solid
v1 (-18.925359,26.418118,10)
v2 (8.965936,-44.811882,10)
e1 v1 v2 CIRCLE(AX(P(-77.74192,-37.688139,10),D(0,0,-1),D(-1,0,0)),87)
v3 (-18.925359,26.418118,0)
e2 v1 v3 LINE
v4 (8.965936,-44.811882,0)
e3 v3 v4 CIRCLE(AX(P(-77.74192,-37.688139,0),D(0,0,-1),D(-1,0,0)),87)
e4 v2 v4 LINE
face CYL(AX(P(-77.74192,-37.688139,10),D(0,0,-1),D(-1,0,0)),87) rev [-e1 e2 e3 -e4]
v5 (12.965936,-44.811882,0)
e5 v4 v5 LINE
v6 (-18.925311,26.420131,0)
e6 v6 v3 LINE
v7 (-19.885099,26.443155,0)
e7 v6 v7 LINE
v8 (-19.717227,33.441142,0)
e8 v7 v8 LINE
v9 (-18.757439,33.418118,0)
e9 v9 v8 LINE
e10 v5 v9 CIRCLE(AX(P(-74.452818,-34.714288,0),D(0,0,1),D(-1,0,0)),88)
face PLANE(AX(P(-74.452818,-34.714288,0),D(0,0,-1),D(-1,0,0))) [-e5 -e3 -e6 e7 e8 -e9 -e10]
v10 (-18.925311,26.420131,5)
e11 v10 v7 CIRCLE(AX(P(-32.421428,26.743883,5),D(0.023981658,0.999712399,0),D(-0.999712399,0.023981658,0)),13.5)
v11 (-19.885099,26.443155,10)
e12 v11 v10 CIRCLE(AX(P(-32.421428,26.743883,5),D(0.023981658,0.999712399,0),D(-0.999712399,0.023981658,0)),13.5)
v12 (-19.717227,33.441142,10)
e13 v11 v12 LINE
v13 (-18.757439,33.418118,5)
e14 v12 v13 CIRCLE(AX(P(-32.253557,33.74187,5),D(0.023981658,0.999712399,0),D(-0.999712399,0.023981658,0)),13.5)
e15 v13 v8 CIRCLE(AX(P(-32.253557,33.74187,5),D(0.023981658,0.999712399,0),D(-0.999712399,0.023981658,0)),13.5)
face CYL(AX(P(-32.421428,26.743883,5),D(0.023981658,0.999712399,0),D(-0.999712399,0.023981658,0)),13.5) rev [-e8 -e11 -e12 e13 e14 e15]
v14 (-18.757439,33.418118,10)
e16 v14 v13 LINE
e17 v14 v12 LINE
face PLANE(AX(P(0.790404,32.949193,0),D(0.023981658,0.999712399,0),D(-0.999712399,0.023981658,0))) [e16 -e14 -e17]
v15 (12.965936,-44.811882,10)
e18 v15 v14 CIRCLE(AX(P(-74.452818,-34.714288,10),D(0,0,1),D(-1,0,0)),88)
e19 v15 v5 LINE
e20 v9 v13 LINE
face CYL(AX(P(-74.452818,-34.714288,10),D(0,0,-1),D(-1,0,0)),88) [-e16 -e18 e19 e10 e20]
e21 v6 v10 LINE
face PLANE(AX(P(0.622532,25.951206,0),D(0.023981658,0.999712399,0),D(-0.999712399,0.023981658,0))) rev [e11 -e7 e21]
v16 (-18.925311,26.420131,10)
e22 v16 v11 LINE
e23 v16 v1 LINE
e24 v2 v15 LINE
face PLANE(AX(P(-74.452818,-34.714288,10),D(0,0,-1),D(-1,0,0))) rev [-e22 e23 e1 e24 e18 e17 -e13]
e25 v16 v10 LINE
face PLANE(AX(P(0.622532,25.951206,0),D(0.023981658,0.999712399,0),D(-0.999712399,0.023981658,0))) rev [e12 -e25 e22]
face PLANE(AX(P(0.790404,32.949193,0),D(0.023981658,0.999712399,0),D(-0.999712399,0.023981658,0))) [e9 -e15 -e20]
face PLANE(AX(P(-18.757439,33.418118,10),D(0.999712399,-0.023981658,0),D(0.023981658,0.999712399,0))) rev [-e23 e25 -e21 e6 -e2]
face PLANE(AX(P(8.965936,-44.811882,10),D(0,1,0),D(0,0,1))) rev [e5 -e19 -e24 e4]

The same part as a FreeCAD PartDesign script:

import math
import FreeCAD as App
import Part
import Sketcher
from FreeCAD import Vector

doc = App.newDocument("Part")
body = doc.addObject("PartDesign::Body", "Body")

# Sketch on XY plane
sketch1 = body.newObject("Sketcher::SketchObject", "Sketch")
sketch1.AttachmentSupport = (doc.getObject("XY_Plane"), [""])
sketch1.MapMode = "FlatFace"
sketch1.addGeometry([
    Part.LineSegment(Vector(-18.757439, 33.418118, 0), Vector(-18.925359, 26.418118, 0)),
    Part.ArcOfCircle(Part.Circle(Vector(-77.74192, -37.688139, 0), Vector(0, 0, 1), 87), math.radians(-4.696757), math.radians(47.46407)),
    Part.LineSegment(Vector(8.965936, -44.811882, 0), Vector(12.965936, -44.811882, 0)),
    Part.ArcOfCircle(Part.Circle(Vector(-74.452818, -34.714288, 0), Vector(0, 0, 1), 88), math.radians(-6.58894), math.radians(50.735445)),
], False)
sketch1.addConstraint([
    Sketcher.Constraint("Coincident", 0, 2, 1, 2),
    Sketcher.Constraint("Coincident", 1, 1, 2, 1),
    Sketcher.Constraint("Coincident", 2, 2, 3, 1),
    Sketcher.Constraint("Coincident", 3, 2, 0, 1),
    Sketcher.Constraint("Horizontal", 2),
    Sketcher.Constraint("Radius", 1, 87.0),
    Sketcher.Constraint("Radius", 3, 88.0),
    Sketcher.Constraint("DistanceX", 2, 1, 2, 2, 4.0),
    Sketcher.Constraint("DistanceY", 0, 2, 3, 2, 7.0),
    Sketcher.Constraint("DistanceY", 1, 1, 0, 2, 71.23),
    Sketcher.Constraint("DistanceX", 1, 3, 3, 3, 3.289102),
    Sketcher.Constraint("DistanceX", 1, 3, -1, 1, 77.74192),
    Sketcher.Constraint("DistanceY", 1, 3, -1, 1, 37.688139),
    Sketcher.Constraint("DistanceY", 3, 3, -1, 1, 34.714288),
])
pad1 = body.newObject("PartDesign::Pad", "Pad")
pad1.Profile = sketch1
pad1.Length = 10

# Sketch on an angled plane
sketch2 = body.newObject("Sketcher::SketchObject", "Sketch001")
sketch2.Placement = App.Placement(Vector(0.790404, 32.949193, 0), App.Rotation(Vector(0, 0, -1), Vector(-0.999712399, 0.023981658, 0), Vector(0.023981658, 0.999712399, 0), "ZXY"))
sketch2.addGeometry([
    Part.LineSegment(Vector(-10, 20.51353, 0), Vector(-10, 19.553467, 0)),  # 0
    Part.LineSegment(Vector(-10, 19.553467, 0), Vector(-5, 19.553467, 0)),  # 1
    Part.ArcOfCircle(Part.Circle(Vector(-5, 33.053467, 0), Vector(0, 0, 1), 13.5), math.radians(-111.738461), math.radians(-90)),  # 2
    Part.ArcOfCircle(Part.Circle(Vector(-5, 33.053467, 0), Vector(0, 0, 1), 13.5), math.radians(-90), math.radians(-68.261539)),  # 3
    Part.LineSegment(Vector(-5, 19.553467, 0), Vector(0, 19.553467, 0)),  # 4
    Part.LineSegment(Vector(0, 19.553467, 0), Vector(0, 20.51353, 0)),  # 5
], False)
sketch2.addConstraint([
    Sketcher.Constraint("Coincident", 0, 2, 1, 1),
    Sketcher.Constraint("Tangent", 1, 2, 2, 2),
    Sketcher.Constraint("Coincident", 2, 1, 0, 1),
    Sketcher.Constraint("Tangent", 3, 1, 4, 1),
    Sketcher.Constraint("Coincident", 4, 2, 5, 1),
    Sketcher.Constraint("Coincident", 5, 2, 3, 2),
    Sketcher.Constraint("Vertical", 0),
    Sketcher.Constraint("Horizontal", 1),
    Sketcher.Constraint("Horizontal", 4),
    Sketcher.Constraint("Vertical", 5),
    Sketcher.Constraint("Coincident", 3, 3, 2, 3),
    Sketcher.Constraint("Equal", 2, 3),
    Sketcher.Constraint("PointOnObject", 4, 2, -2),
    Sketcher.Constraint("Horizontal", 2, 1, 5, 2),
    Sketcher.Constraint("Radius", 2, 13.5),
    Sketcher.Constraint("DistanceX", 1, 1, 1, 2, 5.0),
    Sketcher.Constraint("DistanceY", -1, 1, 2, 1, 20.51353),
])
pad2 = body.newObject("PartDesign::Pad", "Pad001")
pad2.Profile = sketch2
pad2.Length = 7
pad2.Reversed = True

doc.recompute()
